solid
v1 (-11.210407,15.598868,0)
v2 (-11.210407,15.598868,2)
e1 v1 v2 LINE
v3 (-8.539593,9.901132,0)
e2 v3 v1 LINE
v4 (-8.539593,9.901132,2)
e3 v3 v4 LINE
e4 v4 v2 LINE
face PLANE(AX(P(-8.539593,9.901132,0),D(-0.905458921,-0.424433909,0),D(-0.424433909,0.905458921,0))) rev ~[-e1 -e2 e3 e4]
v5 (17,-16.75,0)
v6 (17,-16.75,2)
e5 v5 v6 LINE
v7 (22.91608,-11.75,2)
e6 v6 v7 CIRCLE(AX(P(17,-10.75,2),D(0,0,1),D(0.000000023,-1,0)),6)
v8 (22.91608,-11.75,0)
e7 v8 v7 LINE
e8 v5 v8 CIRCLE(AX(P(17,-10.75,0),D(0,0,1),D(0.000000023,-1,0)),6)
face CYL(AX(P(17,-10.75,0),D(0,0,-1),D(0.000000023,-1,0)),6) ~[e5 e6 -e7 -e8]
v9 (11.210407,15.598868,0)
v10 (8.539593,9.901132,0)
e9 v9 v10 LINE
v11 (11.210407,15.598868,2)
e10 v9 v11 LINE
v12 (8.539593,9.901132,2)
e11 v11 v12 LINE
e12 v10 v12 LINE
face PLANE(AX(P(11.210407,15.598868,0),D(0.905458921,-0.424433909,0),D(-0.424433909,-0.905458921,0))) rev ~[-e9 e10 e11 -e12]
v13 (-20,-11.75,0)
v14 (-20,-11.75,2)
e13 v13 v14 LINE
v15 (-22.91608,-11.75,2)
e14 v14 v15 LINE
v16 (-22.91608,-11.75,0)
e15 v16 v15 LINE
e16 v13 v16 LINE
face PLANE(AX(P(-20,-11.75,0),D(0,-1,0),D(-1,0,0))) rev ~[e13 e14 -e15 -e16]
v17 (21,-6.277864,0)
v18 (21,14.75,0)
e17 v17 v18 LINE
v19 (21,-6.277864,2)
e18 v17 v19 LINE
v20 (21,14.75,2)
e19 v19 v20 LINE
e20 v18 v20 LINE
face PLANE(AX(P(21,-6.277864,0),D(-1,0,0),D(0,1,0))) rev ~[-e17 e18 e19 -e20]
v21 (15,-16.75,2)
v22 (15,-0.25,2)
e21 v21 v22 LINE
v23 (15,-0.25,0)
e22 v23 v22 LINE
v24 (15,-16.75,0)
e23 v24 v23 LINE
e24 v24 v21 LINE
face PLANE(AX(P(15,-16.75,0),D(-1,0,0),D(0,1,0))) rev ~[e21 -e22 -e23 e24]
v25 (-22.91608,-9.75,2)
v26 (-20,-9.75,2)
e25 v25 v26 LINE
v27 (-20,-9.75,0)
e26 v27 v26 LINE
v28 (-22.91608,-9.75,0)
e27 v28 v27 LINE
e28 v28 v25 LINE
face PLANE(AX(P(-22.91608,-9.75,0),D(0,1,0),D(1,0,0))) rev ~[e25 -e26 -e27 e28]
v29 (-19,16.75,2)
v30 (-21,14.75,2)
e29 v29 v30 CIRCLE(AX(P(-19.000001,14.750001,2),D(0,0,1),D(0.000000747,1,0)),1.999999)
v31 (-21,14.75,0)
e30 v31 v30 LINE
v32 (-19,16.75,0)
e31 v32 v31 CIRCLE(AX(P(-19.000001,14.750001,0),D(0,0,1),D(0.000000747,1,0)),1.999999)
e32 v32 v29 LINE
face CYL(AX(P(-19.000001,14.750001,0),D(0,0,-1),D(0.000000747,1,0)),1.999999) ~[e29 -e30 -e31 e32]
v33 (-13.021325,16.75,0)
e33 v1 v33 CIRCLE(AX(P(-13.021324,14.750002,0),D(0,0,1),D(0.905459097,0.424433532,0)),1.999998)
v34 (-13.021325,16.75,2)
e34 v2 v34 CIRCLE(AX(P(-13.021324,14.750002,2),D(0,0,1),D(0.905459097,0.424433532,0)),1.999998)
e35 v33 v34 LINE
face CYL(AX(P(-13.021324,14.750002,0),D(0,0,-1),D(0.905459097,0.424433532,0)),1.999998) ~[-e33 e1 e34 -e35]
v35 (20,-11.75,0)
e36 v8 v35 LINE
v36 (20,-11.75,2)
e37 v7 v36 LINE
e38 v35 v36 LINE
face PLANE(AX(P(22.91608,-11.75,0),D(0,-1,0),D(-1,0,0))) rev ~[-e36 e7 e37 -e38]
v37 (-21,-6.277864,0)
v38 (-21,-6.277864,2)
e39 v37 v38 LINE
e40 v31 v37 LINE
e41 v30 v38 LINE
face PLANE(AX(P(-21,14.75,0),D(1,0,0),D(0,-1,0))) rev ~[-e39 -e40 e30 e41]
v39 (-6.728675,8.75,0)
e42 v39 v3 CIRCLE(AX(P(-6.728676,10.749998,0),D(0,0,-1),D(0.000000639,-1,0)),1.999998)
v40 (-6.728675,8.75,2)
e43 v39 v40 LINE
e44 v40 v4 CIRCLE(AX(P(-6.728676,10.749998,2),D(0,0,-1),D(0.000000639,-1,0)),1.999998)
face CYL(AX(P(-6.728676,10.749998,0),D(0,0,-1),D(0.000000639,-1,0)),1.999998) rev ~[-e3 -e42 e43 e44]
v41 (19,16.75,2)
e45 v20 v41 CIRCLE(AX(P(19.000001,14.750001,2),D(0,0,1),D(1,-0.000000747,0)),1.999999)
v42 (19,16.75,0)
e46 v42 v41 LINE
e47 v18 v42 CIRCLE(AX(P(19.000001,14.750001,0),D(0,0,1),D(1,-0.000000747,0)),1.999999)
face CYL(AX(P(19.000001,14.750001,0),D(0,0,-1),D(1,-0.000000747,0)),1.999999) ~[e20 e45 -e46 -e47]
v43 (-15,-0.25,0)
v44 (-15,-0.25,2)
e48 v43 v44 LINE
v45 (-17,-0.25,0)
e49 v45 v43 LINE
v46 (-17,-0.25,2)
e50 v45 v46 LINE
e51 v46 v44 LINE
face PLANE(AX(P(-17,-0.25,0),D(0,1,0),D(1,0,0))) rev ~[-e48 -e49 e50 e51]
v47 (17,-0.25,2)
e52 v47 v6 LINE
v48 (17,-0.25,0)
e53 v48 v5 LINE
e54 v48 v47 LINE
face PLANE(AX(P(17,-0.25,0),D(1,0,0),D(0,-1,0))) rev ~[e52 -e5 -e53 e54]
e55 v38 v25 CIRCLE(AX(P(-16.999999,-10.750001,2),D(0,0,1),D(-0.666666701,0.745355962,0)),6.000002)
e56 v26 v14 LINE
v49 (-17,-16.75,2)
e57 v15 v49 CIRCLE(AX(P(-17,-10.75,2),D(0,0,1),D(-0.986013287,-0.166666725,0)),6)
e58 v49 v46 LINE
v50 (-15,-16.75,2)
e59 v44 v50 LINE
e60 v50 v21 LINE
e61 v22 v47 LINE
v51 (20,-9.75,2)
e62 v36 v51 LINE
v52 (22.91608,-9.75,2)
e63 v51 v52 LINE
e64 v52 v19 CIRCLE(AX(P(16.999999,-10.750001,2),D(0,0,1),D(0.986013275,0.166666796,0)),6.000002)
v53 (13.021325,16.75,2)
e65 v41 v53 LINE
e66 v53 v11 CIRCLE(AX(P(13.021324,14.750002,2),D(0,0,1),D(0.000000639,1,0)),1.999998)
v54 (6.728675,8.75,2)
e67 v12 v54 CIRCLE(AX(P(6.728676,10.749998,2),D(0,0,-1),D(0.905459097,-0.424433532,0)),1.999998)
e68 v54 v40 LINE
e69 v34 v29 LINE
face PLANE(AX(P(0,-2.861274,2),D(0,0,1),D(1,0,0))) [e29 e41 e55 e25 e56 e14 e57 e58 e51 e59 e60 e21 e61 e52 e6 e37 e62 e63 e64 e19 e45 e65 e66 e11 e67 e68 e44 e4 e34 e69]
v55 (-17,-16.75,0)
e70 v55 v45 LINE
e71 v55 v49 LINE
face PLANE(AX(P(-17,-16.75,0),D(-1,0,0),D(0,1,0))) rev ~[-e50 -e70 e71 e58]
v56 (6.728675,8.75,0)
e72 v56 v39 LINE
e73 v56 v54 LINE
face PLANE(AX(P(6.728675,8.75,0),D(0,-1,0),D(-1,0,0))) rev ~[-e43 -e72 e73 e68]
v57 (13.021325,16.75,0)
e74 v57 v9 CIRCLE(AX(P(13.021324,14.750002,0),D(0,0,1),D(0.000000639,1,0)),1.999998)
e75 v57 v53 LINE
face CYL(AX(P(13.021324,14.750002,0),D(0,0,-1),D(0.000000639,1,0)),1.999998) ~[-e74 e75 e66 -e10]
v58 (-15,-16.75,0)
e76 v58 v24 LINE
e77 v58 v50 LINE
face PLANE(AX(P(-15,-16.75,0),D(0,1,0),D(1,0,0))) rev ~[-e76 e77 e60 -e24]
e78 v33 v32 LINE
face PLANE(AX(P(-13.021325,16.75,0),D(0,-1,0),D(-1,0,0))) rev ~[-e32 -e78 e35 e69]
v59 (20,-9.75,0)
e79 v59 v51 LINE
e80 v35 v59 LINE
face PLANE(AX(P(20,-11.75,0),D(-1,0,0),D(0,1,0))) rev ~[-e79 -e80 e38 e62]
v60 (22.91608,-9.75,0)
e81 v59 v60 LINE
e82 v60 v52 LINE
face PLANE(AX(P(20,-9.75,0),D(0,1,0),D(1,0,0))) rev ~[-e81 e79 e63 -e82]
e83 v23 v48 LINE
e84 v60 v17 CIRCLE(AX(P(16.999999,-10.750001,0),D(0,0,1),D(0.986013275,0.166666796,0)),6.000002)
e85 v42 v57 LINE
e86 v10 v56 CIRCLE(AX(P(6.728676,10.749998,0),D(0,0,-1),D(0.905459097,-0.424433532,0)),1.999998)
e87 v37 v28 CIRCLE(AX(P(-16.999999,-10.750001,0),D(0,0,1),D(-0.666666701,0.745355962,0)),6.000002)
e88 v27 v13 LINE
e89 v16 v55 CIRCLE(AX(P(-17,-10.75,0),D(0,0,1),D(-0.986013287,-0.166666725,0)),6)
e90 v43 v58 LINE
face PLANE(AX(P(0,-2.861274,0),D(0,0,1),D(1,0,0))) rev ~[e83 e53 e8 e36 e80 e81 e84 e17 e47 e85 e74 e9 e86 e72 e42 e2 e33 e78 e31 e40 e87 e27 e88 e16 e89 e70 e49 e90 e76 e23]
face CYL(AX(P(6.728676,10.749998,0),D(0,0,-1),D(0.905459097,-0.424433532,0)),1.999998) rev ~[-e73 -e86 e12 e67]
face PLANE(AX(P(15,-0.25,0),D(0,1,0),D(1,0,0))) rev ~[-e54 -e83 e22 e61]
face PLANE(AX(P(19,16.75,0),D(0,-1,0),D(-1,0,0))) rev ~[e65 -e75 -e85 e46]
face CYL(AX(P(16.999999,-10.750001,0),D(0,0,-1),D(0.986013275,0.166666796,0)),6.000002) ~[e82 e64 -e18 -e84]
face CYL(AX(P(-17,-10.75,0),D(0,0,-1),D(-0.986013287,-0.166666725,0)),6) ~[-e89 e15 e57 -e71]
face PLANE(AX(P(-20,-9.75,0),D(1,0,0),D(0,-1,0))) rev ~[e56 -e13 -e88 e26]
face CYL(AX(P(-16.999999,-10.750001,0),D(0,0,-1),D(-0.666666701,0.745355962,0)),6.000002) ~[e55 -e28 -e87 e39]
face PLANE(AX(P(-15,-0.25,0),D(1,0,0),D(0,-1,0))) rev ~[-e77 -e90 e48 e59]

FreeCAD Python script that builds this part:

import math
import FreeCAD as App
import Part
import Sketcher
from FreeCAD import Vector

doc = App.newDocument("Part")
body = doc.addObject("PartDesign::Body", "Body")

# Sketch on XY plane
sketch1 = body.newObject("Sketcher::SketchObject", "Sketch")
sketch1.AttachmentSupport = (doc.getObject("XY_Plane"), [""])
sketch1.MapMode = "FlatFace"
sketch1.addGeometry([
    Part.LineSegment(Vector(-13.021325, 16.75, 0), Vector(-19, 16.75, 0)),  # 0
    Part.ArcOfCircle(Part.Circle(Vector(-19.000001, 14.750001, 0), Vector(0, 0, 1), 1.999999), math.radians(89.999957), math.radians(180.000043)),  # 1
    Part.LineSegment(Vector(-21, 14.75, 0), Vector(-21, -6.277864, 0)),  # 2
    Part.ArcOfCircle(Part.Circle(Vector(-16.999999, -10.750001, 0), Vector(0, 0, 1), 6.000002), math.radians(131.810318), math.radians(170.405924)),  # 3
    Part.LineSegment(Vector(-22.91608, -9.75, 0), Vector(-20, -9.75, 0)),  # 4
    Part.LineSegment(Vector(-20, -9.75, 0), Vector(-20, -11.75, 0)),  # 5
    Part.LineSegment(Vector(-20, -11.75, 0), Vector(-22.91608, -11.75, 0)),  # 6
    Part.ArcOfCircle(Part.Circle(Vector(-17, -10.75, 0), Vector(0, 0, 1), 6), math.radians(-170.405928), math.radians(-90.000001)),  # 7
    Part.LineSegment(Vector(-17, -16.75, 0), Vector(-17, -0.25, 0)),  # 8
    Part.LineSegment(Vector(-17, -0.25, 0), Vector(-15, -0.25, 0)),  # 9
    Part.LineSegment(Vector(-15, -0.25, 0), Vector(-15, -16.75, 0)),  # 10
    Part.LineSegment(Vector(-15, -16.75, 0), Vector(15, -16.75, 0)),  # 11
    Part.LineSegment(Vector(15, -16.75, 0), Vector(15, -0.25, 0)),  # 12
    Part.LineSegment(Vector(15, -0.25, 0), Vector(17, -0.25, 0)),  # 13
    Part.LineSegment(Vector(17, -0.25, 0), Vector(17, -16.75, 0)),  # 14
    Part.ArcOfCircle(Part.Circle(Vector(17, -10.75, 0), Vector(0, 0, 1), 6), math.radians(-89.999999), math.radians(-9.594072)),  # 15
    Part.LineSegment(Vector(22.91608, -11.75, 0), Vector(20, -11.75, 0)),  # 16
    Part.LineSegment(Vector(20, -11.75, 0), Vector(20, -9.75, 0)),  # 17
    Part.LineSegment(Vector(20, -9.75, 0), Vector(22.91608, -9.75, 0)),  # 18
    Part.ArcOfCircle(Part.Circle(Vector(16.999999, -10.750001, 0), Vector(0, 0, 1), 6.000002), math.radians(9.594076), math.radians(48.189682)),  # 19
    Part.LineSegment(Vector(21, -6.277864, 0), Vector(21, 14.75, 0)),  # 20
    Part.ArcOfCircle(Part.Circle(Vector(19.000001, 14.750001, 0), Vector(0, 0, 1), 1.999999), math.radians(-0.000043), math.radians(90.000043)),  # 21
    Part.LineSegment(Vector(19, 16.75, 0), Vector(13.021325, 16.75, 0)),  # 22
    Part.ArcOfCircle(Part.Circle(Vector(13.021324, 14.750002, 0), Vector(0, 0, 1), 1.999998), math.radians(89.999963), math.radians(154.885187)),  # 23
    Part.LineSegment(Vector(11.210407, 15.598868, 0), Vector(8.539593, 9.901132, 0)),  # 24
    Part.ArcOfCircle(Part.Circle(Vector(6.728676, 10.749998, 0), Vector(0, 0, 1), 1.999998), math.radians(-90.000037), math.radians(-25.114813)),  # 25
    Part.LineSegment(Vector(6.728675, 8.75, 0), Vector(-6.728675, 8.75, 0)),  # 26
    Part.ArcOfCircle(Part.Circle(Vector(-6.728676, 10.749998, 0), Vector(0, 0, 1), 1.999998), math.radians(-154.885187), math.radians(-89.999963)),  # 27
    Part.LineSegment(Vector(-8.539593, 9.901132, 0), Vector(-11.210407, 15.598868, 0)),  # 28
    Part.ArcOfCircle(Part.Circle(Vector(-13.021324, 14.750002, 0), Vector(0, 0, 1), 1.999998), math.radians(25.114813), math.radians(90.000037)),  # 29
], False)
sketch1.addConstraint([
    Sketcher.Constraint("Tangent", 0, 2, 1, 1),
    Sketcher.Constraint("Tangent", 1, 2, 2, 1),
    Sketcher.Constraint("Coincident", 2, 2, 3, 1),
    Sketcher.Constraint("Coincident", 3, 2, 4, 1),
    Sketcher.Constraint("Coincident", 4, 2, 5, 1),
    Sketcher.Constraint("Coincident", 5, 2, 6, 1),
    Sketcher.Constraint("Coincident", 6, 2, 7, 1),
    Sketcher.Constraint("Coincident", 7, 2, 8, 1),
    Sketcher.Constraint("Coincident", 8, 2, 9, 1),
    Sketcher.Constraint("Coincident", 9, 2, 10, 1),
    Sketcher.Constraint("Coincident", 10, 2, 11, 1),
    Sketcher.Constraint("Coincident", 11, 2, 12, 1),
    Sketcher.Constraint("Coincident", 12, 2, 13, 1),
    Sketcher.Constraint("Coincident", 13, 2, 14, 1),
    Sketcher.Constraint("Coincident", 14, 2, 15, 1),
    Sketcher.Constraint("Coincident", 15, 2, 16, 1),
    Sketcher.Constraint("Coincident", 16, 2, 17, 1),
    Sketcher.Constraint("Coincident", 17, 2, 18, 1),
    Sketcher.Constraint("Coincident", 18, 2, 19, 1),
    Sketcher.Constraint("Coincident", 19, 2, 20, 1),
    Sketcher.Constraint("Tangent", 20, 2, 21, 1),
    Sketcher.Constraint("Tangent", 21, 2, 22, 1),
    Sketcher.Constraint("Tangent", 22, 2, 23, 1),
    Sketcher.Constraint("Tangent", 23, 2, 24, 1),
    Sketcher.Constraint("Tangent", 24, 2, 25, 2),
    Sketcher.Constraint("Tangent", 25, 1, 26, 1),
    Sketcher.Constraint("Tangent", 26, 2, 27, 2),
    Sketcher.Constraint("Tangent", 27, 1, 28, 1),
    Sketcher.Constraint("Tangent", 28, 2, 29, 1),
    Sketcher.Constraint("Tangent", 29, 2, 0, 1),
    Sketcher.Constraint("Horizontal", 0),
    Sketcher.Constraint("Vertical", 2),
    Sketcher.Constraint("Horizontal", 4),
    Sketcher.Constraint("Vertical", 5),
    Sketcher.Constraint("Horizontal", 6),
    Sketcher.Constraint("Vertical", 8),
    Sketcher.Constraint("Horizontal", 9),
    Sketcher.Constraint("Vertical", 10),
    Sketcher.Constraint("Horizontal", 11),
    Sketcher.Constraint("Vertical", 12),
    Sketcher.Constraint("Horizontal", 13),
    Sketcher.Constraint("Vertical", 14),
    Sketcher.Constraint("Horizontal", 16),
    Sketcher.Constraint("Vertical", 17),
    Sketcher.Constraint("Horizontal", 18),
    Sketcher.Constraint("Vertical", 20),
    Sketcher.Constraint("Horizontal", 22),
    Sketcher.Constraint("Horizontal", 26),
    Sketcher.Constraint("Coincident", 7, 3, 3, 3),
    Sketcher.Constraint("Coincident", 19, 3, 15, 3),
    Sketcher.Constraint("Equal", 3, 7),
    Sketcher.Constraint("Equal", 7, 15),
    Sketcher.Constraint("Equal", 15, 19),
    Sketcher.Constraint("Equal", 1, 21),
    Sketcher.Constraint("Equal", 21, 23),
    Sketcher.Constraint("Equal", 23, 25),
    Sketcher.Constraint("Equal", 25, 27),
    Sketcher.Constraint("Equal", 27, 29),
    Sketcher.Constraint("Symmetric", 3, 3, 15, 3, -2),
    Sketcher.Constraint("Symmetric", 1, 3, 21, 3, -2),
    Sketcher.Constraint("Symmetric", 9, 2, 12, 2, -2),
    Sketcher.Constraint("Symmetric", 5, 2, 16, 2, -2),
    Sketcher.Constraint("Symmetric", 24, 2, 27, 1, -2),
    Sketcher.Constraint("Horizontal", 7, 2, 10, 2),
    Sketcher.Constraint("Horizontal", 4, 2, 17, 2),
    Sketcher.Constraint("Vertical", 3, 2, 6, 2),
    Sketcher.Constraint("Vertical", 3, 3, 7, 2),
    Sketcher.Constraint("Vertical", 19, 3, 13, 2),
    Sketcher.Constraint("Equal", 13, 5),
    Sketcher.Constraint("Radius", 1, 1.999999),
    Sketcher.Constraint("Radius", 3, 6.000002),
    Sketcher.Constraint("DistanceX", 9, 1, 9, 2, 2.0),
    Sketcher.Constraint("DistanceX", 11, 1, 11, 2, 30.0),
    Sketcher.Constraint("DistanceY", 8, 1, 8, 2, 16.5),
    Sketcher.Constraint("DistanceX", 1, 3, -1, 1, 19.000001),
    Sketcher.Constraint("DistanceX", 4, 2, -1, 1, 20.0),
    Sketcher.Constraint("DistanceY", 27, 3, 0, 2, 6.000002),
    Sketcher.Constraint("DistanceY", 12, 2, 25, 3, 10.999998),
    Sketcher.Constraint("DistanceY", -1, 1, 1, 3, 14.750001),
    Sketcher.Constraint("DistanceX", 27, 3, 23, 3, 19.75),
    Sketcher.Constraint("DistanceX", 26, 2, 26, 1, 13.45735),
])
pad1 = body.newObject("PartDesign::Pad", "Pad")
pad1.Profile = sketch1
pad1.Length = 2

doc.recompute()
